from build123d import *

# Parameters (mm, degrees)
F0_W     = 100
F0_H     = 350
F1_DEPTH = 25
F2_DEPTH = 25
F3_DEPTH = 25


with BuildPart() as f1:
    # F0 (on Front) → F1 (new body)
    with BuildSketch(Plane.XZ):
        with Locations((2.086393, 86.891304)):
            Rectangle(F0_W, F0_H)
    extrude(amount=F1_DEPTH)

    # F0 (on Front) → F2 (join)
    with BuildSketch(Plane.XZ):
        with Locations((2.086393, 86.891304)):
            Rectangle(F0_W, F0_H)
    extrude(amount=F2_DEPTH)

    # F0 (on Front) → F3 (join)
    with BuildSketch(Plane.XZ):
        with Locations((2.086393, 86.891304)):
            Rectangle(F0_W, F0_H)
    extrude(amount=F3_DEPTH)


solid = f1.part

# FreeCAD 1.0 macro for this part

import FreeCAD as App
import Part
import Sketcher
Q = App.Units.Quantity

doc = App.newDocument("Part")
params = doc.addObject("Spreadsheet::Sheet", "Params")
for row, (alias, value) in enumerate([
    ("sketch1_width", "100 mm"),
    ("sketch1_height", "350 mm"),
    ("pad1_length", "25 mm"),
    ("sketch2_width", "100 mm"),
    ("sketch2_height", "350 mm"),
    ("pad2_length", "25 mm"),
    ("sketch3_width", "100 mm"),
    ("sketch3_height", "350 mm"),
    ("pad3_length", "25 mm"),
], start=1):
    params.set(f"A{row}", alias)
    params.set(f"B{row}", "=" + value)
    params.setAlias(f"B{row}", alias)

body = doc.addObject("PartDesign::Body", "Body")

# Sketch on XZ plane
sketch1 = body.newObject("Sketcher::SketchObject", "Sketch")
sketch1.AttachmentSupport = (doc.getObject("XZ_Plane"), [""])
sketch1.MapMode = "FlatFace"
sketch1.addGeometry(Part.LineSegment(App.Vector(-47.913607, 261.891304, 0), App.Vector(-47.913607, -88.108696, 0)), False)
sketch1.addGeometry(Part.LineSegment(App.Vector(-47.913607, -88.108696, 0), App.Vector(52.086393, -88.108696, 0)), False)
sketch1.addGeometry(Part.LineSegment(App.Vector(52.086393, -88.108696, 0), App.Vector(52.086393, 261.891304, 0)), False)
sketch1.addGeometry(Part.LineSegment(App.Vector(52.086393, 261.891304, 0), App.Vector(-47.913607, 261.891304, 0)), False)
sketch1.addConstraint(Sketcher.Constraint("Coincident", 0, 2, 1, 1))
sketch1.addConstraint(Sketcher.Constraint("Coincident", 1, 2, 2, 1))
sketch1.addConstraint(Sketcher.Constraint("Coincident", 2, 2, 3, 1))
sketch1.addConstraint(Sketcher.Constraint("Coincident", 3, 2, 0, 1))
sketch1.addConstraint(Sketcher.Constraint("Vertical", 0))
sketch1.addConstraint(Sketcher.Constraint("Horizontal", 1))
sketch1.addConstraint(Sketcher.Constraint("Vertical", 2))
sketch1.addConstraint(Sketcher.Constraint("Horizontal", 3))
sketch1.addConstraint(Sketcher.Constraint("DistanceX", 1, 1, 1, 2, Q("100 mm")))
sketch1.addConstraint(Sketcher.Constraint("DistanceY", 0, 2, 0, 1, Q("350 mm")))
sketch1.addConstraint(Sketcher.Constraint("DistanceX", 0, 2, -1, 1, Q("47.913607 mm")))
sketch1.addConstraint(Sketcher.Constraint("DistanceY", 0, 2, -1, 1, Q("88.108696 mm")))
sketch1.setExpression("Constraints[8]", "Params.sketch1_width")
sketch1.setExpression("Constraints[9]", "Params.sketch1_height")
pad1 = body.newObject("PartDesign::Pad", "Pad")
pad1.Profile = sketch1
pad1.setExpression("Length", "Params.pad1_length")

# Sketch on XZ plane
sketch2 = body.newObject("Sketcher::SketchObject", "Sketch001")
sketch2.AttachmentSupport = (doc.getObject("XZ_Plane"), [""])
sketch2.MapMode = "FlatFace"
sketch2.addGeometry(Part.LineSegment(App.Vector(-47.913607, 261.891304, 0), App.Vector(-47.913607, -88.108696, 0)), False)
sketch2.addGeometry(Part.LineSegment(App.Vector(-47.913607, -88.108696, 0), App.Vector(52.086393, -88.108696, 0)), False)
sketch2.addGeometry(Part.LineSegment(App.Vector(52.086393, -88.108696, 0), App.Vector(52.086393, 261.891304, 0)), False)
sketch2.addGeometry(Part.LineSegment(App.Vector(52.086393, 261.891304, 0), App.Vector(-47.913607, 261.891304, 0)), False)
sketch2.addConstraint(Sketcher.Constraint("Coincident", 0, 2, 1, 1))
sketch2.addConstraint(Sketcher.Constraint("Coincident", 1, 2, 2, 1))
sketch2.addConstraint(Sketcher.Constraint("Coincident", 2, 2, 3, 1))
sketch2.addConstraint(Sketcher.Constraint("Coincident", 3, 2, 0, 1))
sketch2.addConstraint(Sketcher.Constraint("Vertical", 0))
sketch2.addConstraint(Sketcher.Constraint("Horizontal", 1))
sketch2.addConstraint(Sketcher.Constraint("Vertical", 2))
sketch2.addConstraint(Sketcher.Constraint("Horizontal", 3))
sketch2.addConstraint(Sketcher.Constraint("DistanceX", 1, 1, 1, 2, Q("100 mm")))
sketch2.addConstraint(Sketcher.Constraint("DistanceY", 0, 2, 0, 1, Q("350 mm")))
sketch2.addConstraint(Sketcher.Constraint("DistanceX", 0, 2, -1, 1, Q("47.913607 mm")))
sketch2.addConstraint(Sketcher.Constraint("DistanceY", 0, 2, -1, 1, Q("88.108696 mm")))
sketch2.setExpression("Constraints[8]", "Params.sketch2_width")
sketch2.setExpression("Constraints[9]", "Params.sketch2_height")
pad2 = body.newObject("PartDesign::Pad", "Pad001")
pad2.Profile = sketch2
pad2.setExpression("Length", "Params.pad2_length")

# Sketch on XZ plane
sketch3 = body.newObject("Sketcher::SketchObject", "Sketch002")
sketch3.AttachmentSupport = (doc.getObject("XZ_Plane"), [""])
sketch3.MapMode = "FlatFace"
sketch3.addGeometry(Part.LineSegment(App.Vector(-47.913607, 261.891304, 0), App.Vector(-47.913607, -88.108696, 0)), False)
sketch3.addGeometry(Part.LineSegment(App.Vector(-47.913607, -88.108696, 0), App.Vector(52.086393, -88.108696, 0)), False)
sketch3.addGeometry(Part.LineSegment(App.Vector(52.086393, -88.108696, 0), App.Vector(52.086393, 261.891304, 0)), False)
sketch3.addGeometry(Part.LineSegment(App.Vector(52.086393, 261.891304, 0), App.Vector(-47.913607, 261.891304, 0)), False)
sketch3.addConstraint(Sketcher.Constraint("Coincident", 0, 2, 1, 1))
sketch3.addConstraint(Sketcher.Constraint("Coincident", 1, 2, 2, 1))
sketch3.addConstraint(Sketcher.Constraint("Coincident", 2, 2, 3, 1))
sketch3.addConstraint(Sketcher.Constraint("Coincident", 3, 2, 0, 1))
sketch3.addConstraint(Sketcher.Constraint("Vertical", 0))
sketch3.addConstraint(Sketcher.Constraint("Horizontal", 1))
sketch3.addConstraint(Sketcher.Constraint("Vertical", 2))
sketch3.addConstraint(Sketcher.Constraint("Horizontal", 3))
sketch3.addConstraint(Sketcher.Constraint("DistanceX", 1, 1, 1, 2, Q("100 mm")))
sketch3.addConstraint(Sketcher.Constraint("DistanceY", 0, 2, 0, 1, Q("350 mm")))
sketch3.addConstraint(Sketcher.Constraint("DistanceX", 0, 2, -1, 1, Q("47.913607 mm")))
sketch3.addConstraint(Sketcher.Constraint("DistanceY", 0, 2, -1, 1, Q("88.108696 mm")))
sketch3.setExpression("Constraints[8]", "Params.sketch3_width")
sketch3.setExpression("Constraints[9]", "Params.sketch3_height")
pad3 = body.newObject("PartDesign::Pad", "Pad002")
pad3.Profile = sketch3
pad3.setExpression("Length", "Params.pad3_length")

doc.recompute()
